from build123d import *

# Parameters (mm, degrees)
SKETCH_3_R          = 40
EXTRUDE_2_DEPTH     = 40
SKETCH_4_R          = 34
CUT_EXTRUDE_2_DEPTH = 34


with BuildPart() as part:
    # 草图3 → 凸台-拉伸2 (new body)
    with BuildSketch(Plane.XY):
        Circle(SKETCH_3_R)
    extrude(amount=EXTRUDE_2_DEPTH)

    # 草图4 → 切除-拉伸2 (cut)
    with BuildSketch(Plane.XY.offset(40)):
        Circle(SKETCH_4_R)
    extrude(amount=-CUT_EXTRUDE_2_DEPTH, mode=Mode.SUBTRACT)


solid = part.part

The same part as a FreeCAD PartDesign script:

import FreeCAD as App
import Part
import Sketcher

V = App.Vector
Q = App.Units.Quantity

doc = App.newDocument("Part")
body = doc.addObject("PartDesign::Body", "Body")

# Sketch on XY plane
sketch1 = body.newObject("Sketcher::SketchObject", "Sketch")
sketch1.AttachmentSupport = (doc.getObject("XY_Plane"), [""])
sketch1.MapMode = "FlatFace"
sketch1.addGeometry(Part.Circle(V(0, 0, 0), V(0, 0, 1), 40), False)
sketch1.addConstraint(Sketcher.Constraint("Coincident", 0, 3, -1, 1))
sketch1.addConstraint(Sketcher.Constraint("Diameter", 0, Q("80 mm")))
pad1 = body.newObject("PartDesign::Pad", "Pad")
pad1.Profile = sketch1
pad1.Length = 40

# Sketch on XY plane
sketch2 = body.newObject("Sketcher::SketchObject", "Sketch001")
sketch2.AttachmentSupport = (doc.getObject("XY_Plane"), [""])
sketch2.MapMode = "FlatFace"
sketch2.AttachmentOffset = App.Placement(V(0, 0, 40), App.Rotation())
sketch2.addGeometry(Part.Circle(V(0, 0, 0), V(0, 0, 1), 34), False)
sketch2.addConstraint(Sketcher.Constraint("Coincident", 0, 3, -1, 1))
sketch2.addConstraint(Sketcher.Constraint("Diameter", 0, Q("68 mm")))
pocket1 = body.newObject("PartDesign::Pocket", "Pocket")
pocket1.Profile = sketch2
pocket1.Length = 34

doc.recompute()
